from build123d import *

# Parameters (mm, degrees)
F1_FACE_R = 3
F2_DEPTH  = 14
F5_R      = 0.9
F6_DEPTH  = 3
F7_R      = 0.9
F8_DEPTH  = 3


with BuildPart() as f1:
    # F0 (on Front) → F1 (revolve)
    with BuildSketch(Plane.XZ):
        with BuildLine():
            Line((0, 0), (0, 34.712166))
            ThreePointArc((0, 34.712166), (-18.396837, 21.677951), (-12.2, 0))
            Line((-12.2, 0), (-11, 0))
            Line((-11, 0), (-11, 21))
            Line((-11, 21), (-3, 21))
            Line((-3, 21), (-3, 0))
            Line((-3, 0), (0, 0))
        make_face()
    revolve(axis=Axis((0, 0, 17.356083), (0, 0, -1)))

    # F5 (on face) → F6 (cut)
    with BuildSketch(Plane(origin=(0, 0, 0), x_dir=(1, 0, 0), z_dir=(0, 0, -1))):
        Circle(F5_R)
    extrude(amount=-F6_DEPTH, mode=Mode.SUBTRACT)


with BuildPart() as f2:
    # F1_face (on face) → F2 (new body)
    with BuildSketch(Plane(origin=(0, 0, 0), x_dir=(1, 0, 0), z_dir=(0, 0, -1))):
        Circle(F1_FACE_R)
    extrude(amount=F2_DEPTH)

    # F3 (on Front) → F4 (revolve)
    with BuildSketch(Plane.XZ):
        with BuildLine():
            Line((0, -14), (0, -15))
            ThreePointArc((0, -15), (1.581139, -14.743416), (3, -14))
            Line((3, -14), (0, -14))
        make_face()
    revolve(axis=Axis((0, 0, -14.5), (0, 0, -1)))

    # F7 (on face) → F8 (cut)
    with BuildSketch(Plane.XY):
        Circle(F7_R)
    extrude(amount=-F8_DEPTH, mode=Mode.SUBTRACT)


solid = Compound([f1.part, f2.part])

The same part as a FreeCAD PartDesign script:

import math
import FreeCAD as App
import Part
import Sketcher
from FreeCAD import Vector
Q = App.Units.Quantity

doc = App.newDocument("Part")
params = doc.addObject("Spreadsheet::Sheet", "Params")
for row, (alias, value) in enumerate([
    ("sketch1_radius", "19.5 mm"),
    ("sketch1_width", "8 mm"),
    ("sketch1_width2", "3 mm"),
    ("sketch1_height", "21 mm"),
    ("sketch1_width3", "1.2 mm"),
    ("revolution_angle", "360 deg"),
    ("sketch2_diameter", "1.8 mm"),
    ("pocket1_length", "3 mm"),
    ("sketch3_diameter", "6 mm"),
    ("pad1_length", "14 mm"),
    ("sketch4_width", "3 mm"),
    ("sketch4_height", "1 mm"),
    ("revolution2_angle", "360 deg"),
    ("sketch5_diameter", "1.8 mm"),
    ("pocket2_length", "3 mm"),
], start=1):
    params.set(f"A{row}", alias)
    params.set(f"B{row}", "=" + value)
    params.setAlias(f"B{row}", alias)

body = doc.addObject("PartDesign::Body", "Body")

# Sketch on XZ plane
sketch1 = body.newObject("Sketcher::SketchObject", "Sketch")
sketch1.AttachmentSupport = (doc.getObject("XZ_Plane"), [""])
sketch1.MapMode = "FlatFace"
sketch1.addGeometry([
    Part.LineSegment(Vector(0, 0, 0), Vector(0, 34.7, 0)),  # 0
    Part.ArcOfCircle(Part.Circle(Vector(0, 15.2, 0), Vector(0, 0, 1), 19.5), math.radians(90), math.radians(231)),  # 1
    Part.LineSegment(Vector(-12.2, 0, 0), Vector(-11, 0, 0)),  # 2
    Part.LineSegment(Vector(-11, 0, 0), Vector(-11, 21, 0)),  # 3
    Part.LineSegment(Vector(-11, 21, 0), Vector(-3, 21, 0)),  # 4
    Part.LineSegment(Vector(-3, 21, 0), Vector(-3, 0, 0)),  # 5
    Part.LineSegment(Vector(-3, 0, 0), Vector(0, 0, 0)),  # 6
], False)
sketch1.addConstraint([
    Sketcher.Constraint("Coincident", 0, 2, 1, 1),
    Sketcher.Constraint("Coincident", 1, 2, 2, 1),
    Sketcher.Constraint("Coincident", 2, 2, 3, 1),
    Sketcher.Constraint("Coincident", 3, 2, 4, 1),
    Sketcher.Constraint("Coincident", 4, 2, 5, 1),
    Sketcher.Constraint("Coincident", 5, 2, 6, 1),
    Sketcher.Constraint("Coincident", 6, 2, 0, 1),
    Sketcher.Constraint("Vertical", 0),
    Sketcher.Constraint("Horizontal", 2),
    Sketcher.Constraint("Vertical", 3),
    Sketcher.Constraint("Horizontal", 4),
    Sketcher.Constraint("Vertical", 5),
    Sketcher.Constraint("Horizontal", 6),
    Sketcher.Constraint("Coincident", 6, 2, -1, 1),
    Sketcher.Constraint("PointOnObject", 1, 3, -2),
    Sketcher.Constraint("PointOnObject", 1, 2, -1),
    Sketcher.Constraint("Radius", 1, Q("19.5 mm")),
    Sketcher.Constraint("DistanceX", 4, 1, 4, 2, Q("8 mm")),
    Sketcher.Constraint("DistanceX", 6, 1, 6, 2, Q("3 mm")),
    Sketcher.Constraint("DistanceY", 3, 1, 3, 2, Q("21 mm")),
    Sketcher.Constraint("DistanceX", 2, 1, 2, 2, Q("1.2 mm")),
])
sketch1.setExpression("Constraints[16]", "Params.sketch1_radius")
sketch1.setExpression("Constraints[17]", "Params.sketch1_width")
sketch1.setExpression("Constraints[18]", "Params.sketch1_width2")
sketch1.setExpression("Constraints[19]", "Params.sketch1_height")
sketch1.setExpression("Constraints[20]", "Params.sketch1_width3")
revolution = body.newObject("PartDesign::Revolution", "Revolution")
revolution.Profile = sketch1
revolution.ReferenceAxis = (sketch1, ["V_Axis"])
revolution.setExpression("Angle", "Params.revolution_angle")

# Sketch on XY plane
sketch2 = body.newObject("Sketcher::SketchObject", "Sketch001")
sketch2.AttachmentSupport = (doc.getObject("XY_Plane"), [""])
sketch2.MapMode = "FlatFace"
sketch2.addGeometry(Part.Circle(Vector(0, 0, 0), Vector(0, 0, 1), 0.9), False)
sketch2.addConstraint([
    Sketcher.Constraint("Coincident", 0, 3, -1, 1),
    Sketcher.Constraint("Diameter", 0, Q("1.8 mm")),
])
sketch2.setExpression("Constraints[1]", "Params.sketch2_diameter")
pocket1 = body.newObject("PartDesign::Pocket", "Pocket")
pocket1.Profile = sketch2
pocket1.setExpression("Length", "Params.pocket1_length")
pocket1.Reversed = True
body2 = doc.addObject("PartDesign::Body", "Body001")

# Sketch on XY plane
sketch3 = body2.newObject("Sketcher::SketchObject", "Sketch002")
sketch3.AttachmentSupport = (doc.getObject("XY_Plane001"), [""])
sketch3.MapMode = "FlatFace"
sketch3.addGeometry(Part.Circle(Vector(0, 0, 0), Vector(0, 0, 1), 3), False)
sketch3.addConstraint([
    Sketcher.Constraint("Coincident", 0, 3, -1, 1),
    Sketcher.Constraint("Diameter", 0, Q("6 mm")),
])
sketch3.setExpression("Constraints[1]", "Params.sketch3_diameter")
pad1 = body2.newObject("PartDesign::Pad", "Pad")
pad1.Profile = sketch3
pad1.setExpression("Length", "Params.pad1_length")
pad1.Reversed = True

# Sketch on XZ plane
sketch4 = body2.newObject("Sketcher::SketchObject", "Sketch003")
sketch4.AttachmentSupport = (doc.getObject("XZ_Plane001"), [""])
sketch4.MapMode = "FlatFace"
sketch4.addGeometry([
    Part.LineSegment(Vector(0, -14, 0), Vector(0, -15, 0)),
    Part.ArcOfCircle(Part.Circle(Vector(0, -10, 0), Vector(0, 0, 1), 5), math.radians(-90), math.radians(-53)),
    Part.LineSegment(Vector(3, -14, 0), Vector(0, -14, 0)),
], False)
sketch4.addConstraint([
    Sketcher.Constraint("Coincident", 0, 2, 1, 1),
    Sketcher.Constraint("Coincident", 1, 2, 2, 1),
    Sketcher.Constraint("Coincident", 2, 2, 0, 1),
    Sketcher.Constraint("Vertical", 0),
    Sketcher.Constraint("Horizontal", 2),
    Sketcher.Constraint("PointOnObject", 0, 2, -2),
    Sketcher.Constraint("DistanceX", 2, 2, 2, 1, Q("3 mm")),
    Sketcher.Constraint("DistanceY", 0, 2, 0, 1, Q("1 mm")),
    Sketcher.Constraint("DistanceY", 0, 2, -1, 1, Q("15 mm")),
    Sketcher.Constraint("Radius", 1, Q("5.000008 mm")),
])
sketch4.setExpression("Constraints[6]", "Params.sketch4_width")
sketch4.setExpression("Constraints[7]", "Params.sketch4_height")
revolution2 = body2.newObject("PartDesign::Revolution", "Revolution001")
revolution2.Profile = sketch4
revolution2.ReferenceAxis = (sketch4, ["V_Axis"])
revolution2.setExpression("Angle", "Params.revolution2_angle")

# Sketch on XY plane
sketch5 = body2.newObject("Sketcher::SketchObject", "Sketch004")
sketch5.AttachmentSupport = (doc.getObject("XY_Plane001"), [""])
sketch5.MapMode = "FlatFace"
sketch5.addGeometry(Part.Circle(Vector(0, 0, 0), Vector(0, 0, 1), 0.9), False)
sketch5.addConstraint([
    Sketcher.Constraint("Coincident", 0, 3, -1, 1),
    Sketcher.Constraint("Diameter", 0, Q("1.8 mm")),
])
sketch5.setExpression("Constraints[1]", "Params.sketch5_diameter")
pocket2 = body2.newObject("PartDesign::Pocket", "Pocket001")
pocket2.Profile = sketch5
pocket2.setExpression("Length", "Params.pocket2_length")

doc.recompute()
